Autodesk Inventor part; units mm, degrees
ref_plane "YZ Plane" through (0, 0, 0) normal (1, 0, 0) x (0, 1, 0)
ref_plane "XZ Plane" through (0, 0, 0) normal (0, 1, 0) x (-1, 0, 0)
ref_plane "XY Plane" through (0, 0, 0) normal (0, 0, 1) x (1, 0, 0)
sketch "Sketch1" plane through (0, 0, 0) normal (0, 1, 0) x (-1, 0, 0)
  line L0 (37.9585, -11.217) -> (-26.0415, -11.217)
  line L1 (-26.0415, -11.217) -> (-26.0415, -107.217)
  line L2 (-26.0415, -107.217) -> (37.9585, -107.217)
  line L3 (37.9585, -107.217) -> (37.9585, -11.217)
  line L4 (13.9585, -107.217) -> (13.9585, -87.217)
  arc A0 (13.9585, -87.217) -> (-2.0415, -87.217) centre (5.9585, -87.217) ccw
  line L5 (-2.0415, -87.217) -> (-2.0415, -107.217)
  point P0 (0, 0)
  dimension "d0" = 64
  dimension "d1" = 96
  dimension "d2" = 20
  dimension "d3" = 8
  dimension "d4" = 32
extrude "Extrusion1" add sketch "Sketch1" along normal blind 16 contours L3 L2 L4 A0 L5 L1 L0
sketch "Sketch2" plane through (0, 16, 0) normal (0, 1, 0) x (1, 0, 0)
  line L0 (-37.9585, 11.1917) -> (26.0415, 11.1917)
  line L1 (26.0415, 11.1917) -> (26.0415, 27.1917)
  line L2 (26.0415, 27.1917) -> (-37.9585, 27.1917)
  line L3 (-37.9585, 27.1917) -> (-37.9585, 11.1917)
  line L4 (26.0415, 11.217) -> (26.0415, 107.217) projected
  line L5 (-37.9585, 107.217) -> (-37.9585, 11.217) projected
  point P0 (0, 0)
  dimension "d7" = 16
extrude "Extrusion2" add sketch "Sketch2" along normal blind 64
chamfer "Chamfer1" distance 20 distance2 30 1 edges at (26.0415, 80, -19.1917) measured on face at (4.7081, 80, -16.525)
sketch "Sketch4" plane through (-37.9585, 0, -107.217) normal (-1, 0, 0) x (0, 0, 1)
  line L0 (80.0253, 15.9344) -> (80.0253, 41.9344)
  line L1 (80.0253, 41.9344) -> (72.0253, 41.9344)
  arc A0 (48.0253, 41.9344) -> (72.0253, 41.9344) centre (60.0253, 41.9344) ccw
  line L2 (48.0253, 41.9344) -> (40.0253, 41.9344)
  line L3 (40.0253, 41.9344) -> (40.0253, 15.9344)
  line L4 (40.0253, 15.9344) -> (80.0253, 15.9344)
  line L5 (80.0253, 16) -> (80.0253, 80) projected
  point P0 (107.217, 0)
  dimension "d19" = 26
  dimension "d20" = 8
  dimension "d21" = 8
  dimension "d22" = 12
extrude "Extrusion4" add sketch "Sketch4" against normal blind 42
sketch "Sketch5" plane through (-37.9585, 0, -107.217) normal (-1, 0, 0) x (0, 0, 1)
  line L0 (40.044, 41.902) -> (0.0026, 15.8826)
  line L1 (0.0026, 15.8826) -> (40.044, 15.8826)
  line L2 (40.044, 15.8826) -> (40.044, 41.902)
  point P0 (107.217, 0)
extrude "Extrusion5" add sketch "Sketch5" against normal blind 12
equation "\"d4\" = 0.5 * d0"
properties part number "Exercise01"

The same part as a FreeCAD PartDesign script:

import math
import FreeCAD as App
import Part
import Sketcher


def edges_at(feature, points):
    """Names of the edges that pass closest to the given points."""
    edges = feature.Shape.Edges
    near = lambda p: min(range(len(edges)), key=lambda i: edges[i].distToShape(Part.Vertex(*p))[0])
    return sorted({f"Edge{near(p) + 1}" for p in points})


def add_polygon(sketch, points):
    """Adds a closed chain of lines whose ends are joined by coincident constraints."""
    first, n = sketch.GeometryCount, len(points)
    for a, b in zip(points, points[1:] + points[:1]):
        sketch.addGeometry(Part.LineSegment(App.Vector(*a, 0), App.Vector(*b, 0)), False)
    for i in range(n):
        sketch.addConstraint(Sketcher.Constraint("Coincident", first + i, 2, first + (i + 1) % n, 1))

doc = App.newDocument("Part")
body = doc.addObject("PartDesign::Body", "Body")

sketch1 = doc.addObject("Sketcher::SketchObject", "Sketch")
body.addObject(sketch1)
sketch1.AttachmentSupport = (doc.XZ_Plane, [""])
sketch1.MapMode = "FlatFace"
sketch1.addGeometry([
    Part.LineSegment(App.Vector(-38, -107, 0), App.Vector(-38, -11, 0)),
    Part.LineSegment(App.Vector(-38, -11, 0), App.Vector(26, -11, 0)),
    Part.LineSegment(App.Vector(26, -11, 0), App.Vector(26, -107, 0)),
    Part.LineSegment(App.Vector(26, -107, 0), App.Vector(2, -107, 0)),
    Part.LineSegment(App.Vector(2, -107, 0), App.Vector(2, -87, 0)),
    Part.ArcOfCircle(Part.Circle(App.Vector(-6, -87, 0), App.Vector(0, 0, 1), 8), math.radians(0), math.radians(180)),
    Part.LineSegment(App.Vector(-14, -87, 0), App.Vector(-14, -107, 0)),
    Part.LineSegment(App.Vector(-14, -107, 0), App.Vector(-38, -107, 0)),
], False)
sketch1.addConstraint([
    Sketcher.Constraint("Coincident", 0, 2, 1, 1),
    Sketcher.Constraint("Coincident", 1, 2, 2, 1),
    Sketcher.Constraint("Coincident", 2, 2, 3, 1),
    Sketcher.Constraint("Coincident", 3, 2, 4, 1),
    Sketcher.Constraint("Tangent", 4, 2, 5, 1),
    Sketcher.Constraint("Tangent", 5, 2, 6, 1),
    Sketcher.Constraint("Coincident", 6, 2, 7, 1),
    Sketcher.Constraint("Coincident", 7, 2, 0, 1),
    Sketcher.Constraint("Vertical", 0),
    Sketcher.Constraint("Horizontal", 1),
    Sketcher.Constraint("Vertical", 2),
    Sketcher.Constraint("Horizontal", 3),
    Sketcher.Constraint("Vertical", 4),
    Sketcher.Constraint("Vertical", 6),
    Sketcher.Constraint("Horizontal", 7),
    Sketcher.Constraint("Horizontal", 3, 2, 6, 2),
    Sketcher.Constraint("Equal", 3, 7),
    Sketcher.Constraint("Radius", 5, 8.0),
    Sketcher.Constraint("DistanceX", 1, 1, 1, 2, 64.0),
    Sketcher.Constraint("DistanceY", 0, 1, 0, 2, 96.0),
    Sketcher.Constraint("DistanceY", 4, 1, 4, 2, 20.0),
    Sketcher.Constraint("DistanceY", 5, 3, -1, 1, 87.217),
    Sketcher.Constraint("DistanceX", 5, 3, -1, 1, 5.9585),
])
pad1 = doc.addObject("PartDesign::Pad", "Pad")
body.addObject(pad1)
pad1.Profile = sketch1
pad1.Length = 16
pad1.Reversed = True

sketch2 = doc.addObject("Sketcher::SketchObject", "Sketch001")
body.addObject(sketch2)
sketch2.AttachmentSupport = (doc.XZ_Plane, [""])
sketch2.MapMode = "FlatFace"
sketch2.AttachmentOffset = App.Placement(App.Vector(0, 0, -16), App.Rotation())
add_polygon(sketch2, [(-38, -27), (-38, -11), (26, -11), (26, -27)])
sketch2.addConstraint([
    Sketcher.Constraint("Vertical", 0),
    Sketcher.Constraint("Horizontal", 1),
    Sketcher.Constraint("Vertical", 2),
    Sketcher.Constraint("Horizontal", 3),
    Sketcher.Constraint("DistanceY", 0, 1, 0, 2, 16.0),
    Sketcher.Constraint("DistanceX", 1, 1, 1, 2, 64.0),
    Sketcher.Constraint("DistanceX", 0, 2, -1, 1, 37.9585),
    Sketcher.Constraint("DistanceY", 0, 2, -1, 1, 11.1917),
])
pad2 = doc.addObject("PartDesign::Pad", "Pad001")
body.addObject(pad2)
pad2.Profile = sketch2
pad2.Length = 64
pad2.Reversed = True
doc.recompute()

chamfer = doc.addObject("PartDesign::Chamfer", "Chamfer")
body.addObject(chamfer)
chamfer.Base = (pad2, edges_at(pad2, [(26.041, 80, -19.192)]))
chamfer.ChamferType = "Two distances"
chamfer.Size = 20
chamfer.Size2 = 30

sketch3 = doc.addObject("Sketcher::SketchObject", "Sketch002")
body.addObject(sketch3)
sketch3.AttachmentSupport = (doc.YZ_Plane, [""])
sketch3.MapMode = "FlatFace"
sketch3.AttachmentOffset = App.Placement(App.Vector(0, 0, -37.9585), App.Rotation())
sketch3.addGeometry([
    Part.LineSegment(App.Vector(16, -67, 0), App.Vector(16, -27, 0)),
    Part.LineSegment(App.Vector(16, -27, 0), App.Vector(42, -27, 0)),
    Part.LineSegment(App.Vector(42, -27, 0), App.Vector(42, -35, 0)),
    Part.ArcOfCircle(Part.Circle(App.Vector(42, -47, 0), App.Vector(0, 0, 1), 12), math.radians(90), math.radians(270)),
    Part.LineSegment(App.Vector(42, -59, 0), App.Vector(42, -67, 0)),
    Part.LineSegment(App.Vector(42, -67, 0), App.Vector(16, -67, 0)),
], False)
sketch3.addConstraint([
    Sketcher.Constraint("Coincident", 0, 2, 1, 1),
    Sketcher.Constraint("Coincident", 1, 2, 2, 1),
    Sketcher.Constraint("Coincident", 2, 2, 3, 1),
    Sketcher.Constraint("Coincident", 3, 2, 4, 1),
    Sketcher.Constraint("Coincident", 4, 2, 5, 1),
    Sketcher.Constraint("Coincident", 5, 2, 0, 1),
    Sketcher.Constraint("Vertical", 0),
    Sketcher.Constraint("Horizontal", 1),
    Sketcher.Constraint("Vertical", 2),
    Sketcher.Constraint("Vertical", 4),
    Sketcher.Constraint("Horizontal", 5),
    Sketcher.Constraint("Vertical", 3, 3, 1, 2),
    Sketcher.Constraint("Vertical", 2, 2, 3, 2),
    Sketcher.Constraint("Equal", 2, 4),
    Sketcher.Constraint("Radius", 3, 12.0),
    Sketcher.Constraint("DistanceX", 1, 1, 1, 2, 26.0),
    Sketcher.Constraint("DistanceY", 2, 2, 2, 1, 8.0),
    Sketcher.Constraint("DistanceX", -1, 1, 3, 3, 41.9344),
    Sketcher.Constraint("DistanceY", 3, 3, -1, 1, 47.1917),
])
pad3 = doc.addObject("PartDesign::Pad", "Pad002")
body.addObject(pad3)
pad3.Profile = sketch3
pad3.Length = 42

sketch4 = doc.addObject("Sketcher::SketchObject", "Sketch003")
body.addObject(sketch4)
sketch4.AttachmentSupport = (doc.YZ_Plane, [""])
sketch4.MapMode = "FlatFace"
sketch4.AttachmentOffset = App.Placement(App.Vector(0, 0, -37.9585), App.Rotation())
add_polygon(sketch4, [(16, -67), (42, -67), (16, -107)])
sketch4.addConstraint([
    Sketcher.Constraint("Horizontal", 0),
    Sketcher.Constraint("Vertical", 2),
    Sketcher.Constraint("DistanceX", 0, 1, 0, 2, 26.0194),
    Sketcher.Constraint("DistanceY", 2, 1, 2, 2, 40.0414),
    Sketcher.Constraint("DistanceX", -1, 1, 0, 2, 41.902),
    Sketcher.Constraint("DistanceY", 0, 2, -1, 1, 67.173),
])
pad4 = doc.addObject("PartDesign::Pad", "Pad003")
body.addObject(pad4)
pad4.Profile = sketch4
pad4.Length = 12

doc.recompute()
